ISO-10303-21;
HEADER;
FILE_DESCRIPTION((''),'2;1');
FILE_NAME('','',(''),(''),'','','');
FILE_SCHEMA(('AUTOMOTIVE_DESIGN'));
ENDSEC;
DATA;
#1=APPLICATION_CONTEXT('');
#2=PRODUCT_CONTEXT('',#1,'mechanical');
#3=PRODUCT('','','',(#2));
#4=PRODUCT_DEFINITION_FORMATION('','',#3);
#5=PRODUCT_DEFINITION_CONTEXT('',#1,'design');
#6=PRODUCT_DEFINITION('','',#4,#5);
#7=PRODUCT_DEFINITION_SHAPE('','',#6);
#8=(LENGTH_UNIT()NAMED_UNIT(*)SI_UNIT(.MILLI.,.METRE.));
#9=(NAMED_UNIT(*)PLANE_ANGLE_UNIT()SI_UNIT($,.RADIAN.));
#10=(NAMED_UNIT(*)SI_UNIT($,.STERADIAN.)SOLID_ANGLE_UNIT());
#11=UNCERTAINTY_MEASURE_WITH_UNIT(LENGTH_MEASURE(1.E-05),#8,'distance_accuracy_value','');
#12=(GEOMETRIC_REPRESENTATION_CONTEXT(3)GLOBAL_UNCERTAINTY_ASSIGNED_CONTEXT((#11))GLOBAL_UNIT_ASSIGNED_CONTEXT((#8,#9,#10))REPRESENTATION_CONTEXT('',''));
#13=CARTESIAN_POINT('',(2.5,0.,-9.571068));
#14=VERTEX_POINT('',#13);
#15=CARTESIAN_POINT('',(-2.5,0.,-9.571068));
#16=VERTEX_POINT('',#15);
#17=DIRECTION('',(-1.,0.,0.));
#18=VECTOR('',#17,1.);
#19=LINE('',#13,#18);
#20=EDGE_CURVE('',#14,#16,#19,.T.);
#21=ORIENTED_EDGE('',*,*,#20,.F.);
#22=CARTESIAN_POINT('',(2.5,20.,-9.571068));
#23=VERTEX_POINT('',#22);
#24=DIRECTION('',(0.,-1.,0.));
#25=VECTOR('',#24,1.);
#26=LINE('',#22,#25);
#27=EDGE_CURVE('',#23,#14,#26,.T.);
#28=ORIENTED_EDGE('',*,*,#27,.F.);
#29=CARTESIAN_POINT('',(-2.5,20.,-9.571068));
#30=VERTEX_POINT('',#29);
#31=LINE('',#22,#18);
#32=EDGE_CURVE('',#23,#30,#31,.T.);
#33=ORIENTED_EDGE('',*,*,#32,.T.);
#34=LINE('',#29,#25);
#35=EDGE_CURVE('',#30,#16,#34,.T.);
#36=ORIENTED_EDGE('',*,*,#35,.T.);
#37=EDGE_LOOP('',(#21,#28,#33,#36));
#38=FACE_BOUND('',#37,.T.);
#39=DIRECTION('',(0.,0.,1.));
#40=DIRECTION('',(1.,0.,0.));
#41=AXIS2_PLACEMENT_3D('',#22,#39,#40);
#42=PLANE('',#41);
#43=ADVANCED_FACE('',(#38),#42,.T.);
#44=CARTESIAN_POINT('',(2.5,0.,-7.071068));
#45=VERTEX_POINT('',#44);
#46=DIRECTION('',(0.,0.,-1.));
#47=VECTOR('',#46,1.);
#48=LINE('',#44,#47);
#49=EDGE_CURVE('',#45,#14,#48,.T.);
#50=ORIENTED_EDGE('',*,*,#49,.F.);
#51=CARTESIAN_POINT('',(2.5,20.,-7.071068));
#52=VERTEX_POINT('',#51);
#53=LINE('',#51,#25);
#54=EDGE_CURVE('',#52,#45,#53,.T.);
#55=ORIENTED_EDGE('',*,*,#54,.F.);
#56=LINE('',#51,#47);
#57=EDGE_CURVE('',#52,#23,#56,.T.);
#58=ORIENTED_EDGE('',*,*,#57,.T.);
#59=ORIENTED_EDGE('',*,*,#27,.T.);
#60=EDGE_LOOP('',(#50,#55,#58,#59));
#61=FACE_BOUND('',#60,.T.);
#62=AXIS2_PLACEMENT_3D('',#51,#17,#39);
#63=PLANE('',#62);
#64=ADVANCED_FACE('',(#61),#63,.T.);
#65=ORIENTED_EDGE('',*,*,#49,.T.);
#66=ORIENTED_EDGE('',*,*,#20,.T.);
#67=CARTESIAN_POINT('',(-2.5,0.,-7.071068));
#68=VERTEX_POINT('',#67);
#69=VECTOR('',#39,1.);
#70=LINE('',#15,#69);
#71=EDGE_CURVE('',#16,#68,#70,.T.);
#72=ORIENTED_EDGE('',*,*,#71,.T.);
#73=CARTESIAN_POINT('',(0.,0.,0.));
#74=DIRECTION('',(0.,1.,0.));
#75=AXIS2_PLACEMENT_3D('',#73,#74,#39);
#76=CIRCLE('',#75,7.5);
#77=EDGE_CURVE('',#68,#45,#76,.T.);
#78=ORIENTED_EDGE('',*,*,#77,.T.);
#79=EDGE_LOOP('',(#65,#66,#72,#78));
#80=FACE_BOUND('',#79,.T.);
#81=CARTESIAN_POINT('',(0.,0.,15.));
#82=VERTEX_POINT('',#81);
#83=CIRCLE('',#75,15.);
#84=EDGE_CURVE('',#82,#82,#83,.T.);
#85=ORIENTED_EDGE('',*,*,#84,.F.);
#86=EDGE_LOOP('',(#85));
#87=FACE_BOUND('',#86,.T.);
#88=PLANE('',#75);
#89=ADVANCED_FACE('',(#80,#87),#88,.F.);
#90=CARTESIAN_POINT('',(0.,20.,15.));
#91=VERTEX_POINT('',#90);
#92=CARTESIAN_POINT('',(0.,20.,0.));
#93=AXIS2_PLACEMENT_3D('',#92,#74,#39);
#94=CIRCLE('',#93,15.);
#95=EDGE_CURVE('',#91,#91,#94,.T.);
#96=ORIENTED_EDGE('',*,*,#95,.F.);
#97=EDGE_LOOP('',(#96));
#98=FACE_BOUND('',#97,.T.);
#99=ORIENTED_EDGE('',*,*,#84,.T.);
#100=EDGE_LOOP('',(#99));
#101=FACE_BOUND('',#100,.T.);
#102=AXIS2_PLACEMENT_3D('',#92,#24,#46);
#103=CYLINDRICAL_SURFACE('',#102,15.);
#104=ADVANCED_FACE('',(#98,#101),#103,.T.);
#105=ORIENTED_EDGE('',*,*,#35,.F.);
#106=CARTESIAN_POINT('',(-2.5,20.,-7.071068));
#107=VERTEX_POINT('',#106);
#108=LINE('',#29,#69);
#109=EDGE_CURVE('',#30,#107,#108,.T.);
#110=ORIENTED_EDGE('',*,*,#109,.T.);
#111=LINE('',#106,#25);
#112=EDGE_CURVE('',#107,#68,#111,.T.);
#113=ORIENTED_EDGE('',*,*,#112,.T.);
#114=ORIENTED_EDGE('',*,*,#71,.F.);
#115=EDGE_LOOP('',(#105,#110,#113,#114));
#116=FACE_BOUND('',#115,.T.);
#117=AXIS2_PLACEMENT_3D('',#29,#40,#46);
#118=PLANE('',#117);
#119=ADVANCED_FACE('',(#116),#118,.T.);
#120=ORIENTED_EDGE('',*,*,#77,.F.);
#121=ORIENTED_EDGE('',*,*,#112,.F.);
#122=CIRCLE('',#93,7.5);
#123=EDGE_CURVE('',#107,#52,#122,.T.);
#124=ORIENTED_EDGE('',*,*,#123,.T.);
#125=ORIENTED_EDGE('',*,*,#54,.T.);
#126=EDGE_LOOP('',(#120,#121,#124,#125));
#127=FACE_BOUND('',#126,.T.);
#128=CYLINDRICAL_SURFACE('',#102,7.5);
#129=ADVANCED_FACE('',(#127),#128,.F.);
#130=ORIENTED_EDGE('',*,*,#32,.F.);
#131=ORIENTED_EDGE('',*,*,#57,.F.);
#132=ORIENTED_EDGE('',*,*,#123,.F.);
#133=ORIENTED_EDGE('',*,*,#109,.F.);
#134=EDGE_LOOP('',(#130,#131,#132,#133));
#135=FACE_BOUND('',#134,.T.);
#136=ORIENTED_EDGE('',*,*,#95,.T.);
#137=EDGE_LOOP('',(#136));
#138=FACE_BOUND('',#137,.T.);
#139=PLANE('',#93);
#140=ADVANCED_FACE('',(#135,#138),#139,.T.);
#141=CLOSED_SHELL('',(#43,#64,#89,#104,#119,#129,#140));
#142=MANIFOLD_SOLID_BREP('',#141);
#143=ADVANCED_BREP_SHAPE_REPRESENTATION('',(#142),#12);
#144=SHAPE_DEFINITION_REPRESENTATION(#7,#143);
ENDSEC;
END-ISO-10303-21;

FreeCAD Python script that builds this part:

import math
import FreeCAD as App
import Part
import Sketcher
from FreeCAD import Vector

doc = App.newDocument("Part")
body = doc.addObject("PartDesign::Body", "Body")

sketch1 = body.newObject("Sketcher::SketchObject", "Sketch")
sketch1.AttachmentSupport = (doc.getObject("XZ_Plane"), [""])
sketch1.MapMode = "FlatFace"
sketch1.addGeometry(Part.Circle(Vector(0, 0, 0), Vector(0, 0, 1), 15), False)
sketch1.addGeometry(Part.LineSegment(Vector(2.5, -9.6, 0), Vector(2.5, -7.1, 0)), False)
sketch1.addGeometry(Part.ArcOfCircle(Part.Circle(Vector(0, 0, 0), Vector(0, 0, 1), 7.5), math.radians(-71), math.radians(251)), False)
sketch1.addGeometry(Part.LineSegment(Vector(-2.5, -7.1, 0), Vector(-2.5, -9.6, 0)), False)
sketch1.addGeometry(Part.LineSegment(Vector(-2.5, -9.6, 0), Vector(2.5, -9.6, 0)), False)
sketch1.addConstraint(Sketcher.Constraint("Coincident", 1, 2, 2, 1))
sketch1.addConstraint(Sketcher.Constraint("Coincident", 2, 2, 3, 1))
sketch1.addConstraint(Sketcher.Constraint("Coincident", 3, 2, 4, 1))
sketch1.addConstraint(Sketcher.Constraint("Coincident", 4, 2, 1, 1))
sketch1.addConstraint(Sketcher.Constraint("Vertical", 1))
sketch1.addConstraint(Sketcher.Constraint("Vertical", 3))
sketch1.addConstraint(Sketcher.Constraint("Horizontal", 4))
sketch1.addConstraint(Sketcher.Constraint("Coincident", 0, 3, -1, 1))
sketch1.addConstraint(Sketcher.Constraint("Coincident", 2, 3, -1, 1))
sketch1.addConstraint(Sketcher.Constraint("Horizontal", 1, 2, 2, 2))
sketch1.addConstraint(Sketcher.Constraint("Diameter", 0, 30.0))
sketch1.addConstraint(Sketcher.Constraint("Radius", 2, 7.5))
sketch1.addConstraint(Sketcher.Constraint("DistanceX", 4, 1, 4, 2, 5.0))
sketch1.addConstraint(Sketcher.Constraint("DistanceY", 1, 1, 1, 2, 2.5))
pad1 = body.newObject("PartDesign::Pad", "Pad")
pad1.Profile = sketch1
pad1.Length = 20
pad1.Reversed = True

doc.recompute()
